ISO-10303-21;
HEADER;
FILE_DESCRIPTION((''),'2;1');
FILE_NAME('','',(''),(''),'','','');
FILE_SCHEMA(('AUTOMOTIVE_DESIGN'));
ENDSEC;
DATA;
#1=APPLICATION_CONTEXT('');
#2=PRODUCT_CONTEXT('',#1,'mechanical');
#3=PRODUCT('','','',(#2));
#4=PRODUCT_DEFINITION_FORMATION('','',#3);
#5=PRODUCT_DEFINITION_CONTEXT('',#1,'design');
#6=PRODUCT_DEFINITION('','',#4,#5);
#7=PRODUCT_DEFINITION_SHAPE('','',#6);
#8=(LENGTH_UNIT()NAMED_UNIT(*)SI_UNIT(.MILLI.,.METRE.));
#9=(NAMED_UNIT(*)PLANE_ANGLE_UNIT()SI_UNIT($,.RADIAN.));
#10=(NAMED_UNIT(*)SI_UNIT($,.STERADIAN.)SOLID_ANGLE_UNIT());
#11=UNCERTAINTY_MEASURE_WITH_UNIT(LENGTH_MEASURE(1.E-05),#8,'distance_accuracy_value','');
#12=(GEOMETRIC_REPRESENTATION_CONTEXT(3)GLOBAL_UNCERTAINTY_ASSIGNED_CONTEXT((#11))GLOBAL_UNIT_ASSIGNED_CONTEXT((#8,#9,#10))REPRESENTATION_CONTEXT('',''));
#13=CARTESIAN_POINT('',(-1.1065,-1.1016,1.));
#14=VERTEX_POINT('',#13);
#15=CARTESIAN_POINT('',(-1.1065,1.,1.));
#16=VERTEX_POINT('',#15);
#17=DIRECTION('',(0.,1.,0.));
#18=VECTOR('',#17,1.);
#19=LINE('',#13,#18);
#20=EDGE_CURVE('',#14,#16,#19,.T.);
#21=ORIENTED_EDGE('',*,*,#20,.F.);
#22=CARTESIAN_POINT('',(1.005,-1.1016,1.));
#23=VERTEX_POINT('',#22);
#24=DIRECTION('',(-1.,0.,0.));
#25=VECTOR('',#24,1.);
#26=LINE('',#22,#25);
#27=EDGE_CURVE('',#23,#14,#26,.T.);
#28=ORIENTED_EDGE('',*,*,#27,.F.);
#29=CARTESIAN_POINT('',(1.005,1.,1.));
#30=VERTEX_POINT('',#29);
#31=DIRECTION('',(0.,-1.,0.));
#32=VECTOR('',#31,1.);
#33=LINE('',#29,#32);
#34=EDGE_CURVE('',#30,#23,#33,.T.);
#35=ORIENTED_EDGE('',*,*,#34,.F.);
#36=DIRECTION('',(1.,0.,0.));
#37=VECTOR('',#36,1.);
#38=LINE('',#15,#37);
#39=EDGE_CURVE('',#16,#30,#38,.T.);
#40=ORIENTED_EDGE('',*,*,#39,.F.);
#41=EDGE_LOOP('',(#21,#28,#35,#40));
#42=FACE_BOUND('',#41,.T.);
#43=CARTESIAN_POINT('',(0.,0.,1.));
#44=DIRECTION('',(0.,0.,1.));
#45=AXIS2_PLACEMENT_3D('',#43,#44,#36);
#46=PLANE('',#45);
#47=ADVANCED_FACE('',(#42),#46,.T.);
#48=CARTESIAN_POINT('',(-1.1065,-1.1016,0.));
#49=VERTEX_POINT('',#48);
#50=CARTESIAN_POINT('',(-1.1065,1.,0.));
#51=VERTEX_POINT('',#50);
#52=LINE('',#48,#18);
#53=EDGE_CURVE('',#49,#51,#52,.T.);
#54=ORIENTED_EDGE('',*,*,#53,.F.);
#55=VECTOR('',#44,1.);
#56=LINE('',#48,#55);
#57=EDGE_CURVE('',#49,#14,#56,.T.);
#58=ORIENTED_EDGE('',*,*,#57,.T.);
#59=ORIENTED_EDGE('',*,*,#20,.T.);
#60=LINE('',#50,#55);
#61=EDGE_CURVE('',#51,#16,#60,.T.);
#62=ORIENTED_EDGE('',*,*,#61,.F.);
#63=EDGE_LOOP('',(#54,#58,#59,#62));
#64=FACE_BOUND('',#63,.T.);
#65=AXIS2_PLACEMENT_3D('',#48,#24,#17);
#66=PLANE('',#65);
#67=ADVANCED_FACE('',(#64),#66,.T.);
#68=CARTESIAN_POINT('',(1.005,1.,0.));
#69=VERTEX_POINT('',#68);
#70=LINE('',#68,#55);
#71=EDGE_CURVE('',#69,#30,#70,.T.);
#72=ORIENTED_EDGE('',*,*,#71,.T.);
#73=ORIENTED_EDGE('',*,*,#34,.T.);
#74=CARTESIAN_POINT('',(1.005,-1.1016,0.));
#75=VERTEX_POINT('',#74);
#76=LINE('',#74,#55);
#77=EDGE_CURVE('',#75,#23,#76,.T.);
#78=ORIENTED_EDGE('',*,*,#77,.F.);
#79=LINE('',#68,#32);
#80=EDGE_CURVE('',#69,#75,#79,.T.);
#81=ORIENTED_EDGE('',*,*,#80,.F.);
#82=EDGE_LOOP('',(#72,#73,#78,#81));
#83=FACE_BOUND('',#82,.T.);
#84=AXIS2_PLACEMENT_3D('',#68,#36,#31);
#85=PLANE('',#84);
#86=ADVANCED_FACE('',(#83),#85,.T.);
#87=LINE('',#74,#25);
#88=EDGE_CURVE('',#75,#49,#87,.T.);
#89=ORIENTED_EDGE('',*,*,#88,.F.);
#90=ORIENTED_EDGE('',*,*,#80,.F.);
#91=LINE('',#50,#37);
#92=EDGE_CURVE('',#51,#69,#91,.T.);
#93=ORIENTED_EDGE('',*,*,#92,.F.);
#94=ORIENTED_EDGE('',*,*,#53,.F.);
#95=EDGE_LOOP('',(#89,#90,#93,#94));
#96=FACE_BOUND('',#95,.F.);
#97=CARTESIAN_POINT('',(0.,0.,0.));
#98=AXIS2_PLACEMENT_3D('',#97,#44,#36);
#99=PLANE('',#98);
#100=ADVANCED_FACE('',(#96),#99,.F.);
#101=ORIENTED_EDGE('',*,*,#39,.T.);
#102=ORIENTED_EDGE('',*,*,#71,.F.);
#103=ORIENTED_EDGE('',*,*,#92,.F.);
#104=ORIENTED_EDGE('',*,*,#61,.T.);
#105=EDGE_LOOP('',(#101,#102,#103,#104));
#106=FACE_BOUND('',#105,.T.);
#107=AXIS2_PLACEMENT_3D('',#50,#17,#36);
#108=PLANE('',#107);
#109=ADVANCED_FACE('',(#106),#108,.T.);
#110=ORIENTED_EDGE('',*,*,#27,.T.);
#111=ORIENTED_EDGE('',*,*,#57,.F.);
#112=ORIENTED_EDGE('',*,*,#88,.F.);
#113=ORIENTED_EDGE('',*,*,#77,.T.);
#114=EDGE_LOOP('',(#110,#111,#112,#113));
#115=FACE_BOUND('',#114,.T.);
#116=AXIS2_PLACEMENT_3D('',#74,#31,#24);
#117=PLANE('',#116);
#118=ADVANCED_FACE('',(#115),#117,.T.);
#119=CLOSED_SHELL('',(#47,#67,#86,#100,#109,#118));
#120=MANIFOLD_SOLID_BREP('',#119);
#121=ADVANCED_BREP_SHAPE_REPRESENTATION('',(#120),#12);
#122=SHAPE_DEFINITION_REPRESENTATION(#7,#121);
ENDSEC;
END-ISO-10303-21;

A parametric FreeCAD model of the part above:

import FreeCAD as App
import Part
import Sketcher
from FreeCAD import Vector
Q = App.Units.Quantity


def add_polygon(sketch, points):
    """Adds a closed chain of lines whose ends are joined by coincident constraints."""
    first, n = sketch.GeometryCount, len(points)
    for a, b in zip(points, points[1:] + points[:1]):
        sketch.addGeometry(Part.LineSegment(App.Vector(*a, 0), App.Vector(*b, 0)), False)
    for i in range(n):
        sketch.addConstraint(Sketcher.Constraint("Coincident", first + i, 2, first + (i + 1) % n, 1))

doc = App.newDocument("Part")
body = doc.addObject("PartDesign::Body", "Body")

# Sketch on XY plane
sketch1 = doc.addObject("Sketcher::SketchObject", "Sketch")
body.addObject(sketch1)
sketch1.AttachmentSupport = (doc.XY_Plane, [""])
sketch1.MapMode = "FlatFace"
add_polygon(sketch1, [(1.005, 1), (-1.1065, 1), (-1.1065, -1.1016), (1.005, -1.1016)])  # lines 0-3
sketch1.addConstraint([
    Sketcher.Constraint("Horizontal", 0),
    Sketcher.Constraint("Vertical", 1),
    Sketcher.Constraint("Horizontal", 2),
    Sketcher.Constraint("Vertical", 3),
    Sketcher.Constraint("DistanceY", -1, 1, 0, 2, Q("1 mm")),
    Sketcher.Constraint("DistanceX", 0, 2, 0, 1, Q("2.1115 mm")),
    Sketcher.Constraint("DistanceY", 1, 2, 1, 1, Q("2.1016 mm")),
    Sketcher.Constraint("DistanceX", -1, 1, 2, 2, Q("1.005 mm")),
])
pad1 = doc.addObject("PartDesign::Pad", "Pad")
body.addObject(pad1)
pad1.Profile = sketch1
pad1.Length = 1

doc.recompute()
